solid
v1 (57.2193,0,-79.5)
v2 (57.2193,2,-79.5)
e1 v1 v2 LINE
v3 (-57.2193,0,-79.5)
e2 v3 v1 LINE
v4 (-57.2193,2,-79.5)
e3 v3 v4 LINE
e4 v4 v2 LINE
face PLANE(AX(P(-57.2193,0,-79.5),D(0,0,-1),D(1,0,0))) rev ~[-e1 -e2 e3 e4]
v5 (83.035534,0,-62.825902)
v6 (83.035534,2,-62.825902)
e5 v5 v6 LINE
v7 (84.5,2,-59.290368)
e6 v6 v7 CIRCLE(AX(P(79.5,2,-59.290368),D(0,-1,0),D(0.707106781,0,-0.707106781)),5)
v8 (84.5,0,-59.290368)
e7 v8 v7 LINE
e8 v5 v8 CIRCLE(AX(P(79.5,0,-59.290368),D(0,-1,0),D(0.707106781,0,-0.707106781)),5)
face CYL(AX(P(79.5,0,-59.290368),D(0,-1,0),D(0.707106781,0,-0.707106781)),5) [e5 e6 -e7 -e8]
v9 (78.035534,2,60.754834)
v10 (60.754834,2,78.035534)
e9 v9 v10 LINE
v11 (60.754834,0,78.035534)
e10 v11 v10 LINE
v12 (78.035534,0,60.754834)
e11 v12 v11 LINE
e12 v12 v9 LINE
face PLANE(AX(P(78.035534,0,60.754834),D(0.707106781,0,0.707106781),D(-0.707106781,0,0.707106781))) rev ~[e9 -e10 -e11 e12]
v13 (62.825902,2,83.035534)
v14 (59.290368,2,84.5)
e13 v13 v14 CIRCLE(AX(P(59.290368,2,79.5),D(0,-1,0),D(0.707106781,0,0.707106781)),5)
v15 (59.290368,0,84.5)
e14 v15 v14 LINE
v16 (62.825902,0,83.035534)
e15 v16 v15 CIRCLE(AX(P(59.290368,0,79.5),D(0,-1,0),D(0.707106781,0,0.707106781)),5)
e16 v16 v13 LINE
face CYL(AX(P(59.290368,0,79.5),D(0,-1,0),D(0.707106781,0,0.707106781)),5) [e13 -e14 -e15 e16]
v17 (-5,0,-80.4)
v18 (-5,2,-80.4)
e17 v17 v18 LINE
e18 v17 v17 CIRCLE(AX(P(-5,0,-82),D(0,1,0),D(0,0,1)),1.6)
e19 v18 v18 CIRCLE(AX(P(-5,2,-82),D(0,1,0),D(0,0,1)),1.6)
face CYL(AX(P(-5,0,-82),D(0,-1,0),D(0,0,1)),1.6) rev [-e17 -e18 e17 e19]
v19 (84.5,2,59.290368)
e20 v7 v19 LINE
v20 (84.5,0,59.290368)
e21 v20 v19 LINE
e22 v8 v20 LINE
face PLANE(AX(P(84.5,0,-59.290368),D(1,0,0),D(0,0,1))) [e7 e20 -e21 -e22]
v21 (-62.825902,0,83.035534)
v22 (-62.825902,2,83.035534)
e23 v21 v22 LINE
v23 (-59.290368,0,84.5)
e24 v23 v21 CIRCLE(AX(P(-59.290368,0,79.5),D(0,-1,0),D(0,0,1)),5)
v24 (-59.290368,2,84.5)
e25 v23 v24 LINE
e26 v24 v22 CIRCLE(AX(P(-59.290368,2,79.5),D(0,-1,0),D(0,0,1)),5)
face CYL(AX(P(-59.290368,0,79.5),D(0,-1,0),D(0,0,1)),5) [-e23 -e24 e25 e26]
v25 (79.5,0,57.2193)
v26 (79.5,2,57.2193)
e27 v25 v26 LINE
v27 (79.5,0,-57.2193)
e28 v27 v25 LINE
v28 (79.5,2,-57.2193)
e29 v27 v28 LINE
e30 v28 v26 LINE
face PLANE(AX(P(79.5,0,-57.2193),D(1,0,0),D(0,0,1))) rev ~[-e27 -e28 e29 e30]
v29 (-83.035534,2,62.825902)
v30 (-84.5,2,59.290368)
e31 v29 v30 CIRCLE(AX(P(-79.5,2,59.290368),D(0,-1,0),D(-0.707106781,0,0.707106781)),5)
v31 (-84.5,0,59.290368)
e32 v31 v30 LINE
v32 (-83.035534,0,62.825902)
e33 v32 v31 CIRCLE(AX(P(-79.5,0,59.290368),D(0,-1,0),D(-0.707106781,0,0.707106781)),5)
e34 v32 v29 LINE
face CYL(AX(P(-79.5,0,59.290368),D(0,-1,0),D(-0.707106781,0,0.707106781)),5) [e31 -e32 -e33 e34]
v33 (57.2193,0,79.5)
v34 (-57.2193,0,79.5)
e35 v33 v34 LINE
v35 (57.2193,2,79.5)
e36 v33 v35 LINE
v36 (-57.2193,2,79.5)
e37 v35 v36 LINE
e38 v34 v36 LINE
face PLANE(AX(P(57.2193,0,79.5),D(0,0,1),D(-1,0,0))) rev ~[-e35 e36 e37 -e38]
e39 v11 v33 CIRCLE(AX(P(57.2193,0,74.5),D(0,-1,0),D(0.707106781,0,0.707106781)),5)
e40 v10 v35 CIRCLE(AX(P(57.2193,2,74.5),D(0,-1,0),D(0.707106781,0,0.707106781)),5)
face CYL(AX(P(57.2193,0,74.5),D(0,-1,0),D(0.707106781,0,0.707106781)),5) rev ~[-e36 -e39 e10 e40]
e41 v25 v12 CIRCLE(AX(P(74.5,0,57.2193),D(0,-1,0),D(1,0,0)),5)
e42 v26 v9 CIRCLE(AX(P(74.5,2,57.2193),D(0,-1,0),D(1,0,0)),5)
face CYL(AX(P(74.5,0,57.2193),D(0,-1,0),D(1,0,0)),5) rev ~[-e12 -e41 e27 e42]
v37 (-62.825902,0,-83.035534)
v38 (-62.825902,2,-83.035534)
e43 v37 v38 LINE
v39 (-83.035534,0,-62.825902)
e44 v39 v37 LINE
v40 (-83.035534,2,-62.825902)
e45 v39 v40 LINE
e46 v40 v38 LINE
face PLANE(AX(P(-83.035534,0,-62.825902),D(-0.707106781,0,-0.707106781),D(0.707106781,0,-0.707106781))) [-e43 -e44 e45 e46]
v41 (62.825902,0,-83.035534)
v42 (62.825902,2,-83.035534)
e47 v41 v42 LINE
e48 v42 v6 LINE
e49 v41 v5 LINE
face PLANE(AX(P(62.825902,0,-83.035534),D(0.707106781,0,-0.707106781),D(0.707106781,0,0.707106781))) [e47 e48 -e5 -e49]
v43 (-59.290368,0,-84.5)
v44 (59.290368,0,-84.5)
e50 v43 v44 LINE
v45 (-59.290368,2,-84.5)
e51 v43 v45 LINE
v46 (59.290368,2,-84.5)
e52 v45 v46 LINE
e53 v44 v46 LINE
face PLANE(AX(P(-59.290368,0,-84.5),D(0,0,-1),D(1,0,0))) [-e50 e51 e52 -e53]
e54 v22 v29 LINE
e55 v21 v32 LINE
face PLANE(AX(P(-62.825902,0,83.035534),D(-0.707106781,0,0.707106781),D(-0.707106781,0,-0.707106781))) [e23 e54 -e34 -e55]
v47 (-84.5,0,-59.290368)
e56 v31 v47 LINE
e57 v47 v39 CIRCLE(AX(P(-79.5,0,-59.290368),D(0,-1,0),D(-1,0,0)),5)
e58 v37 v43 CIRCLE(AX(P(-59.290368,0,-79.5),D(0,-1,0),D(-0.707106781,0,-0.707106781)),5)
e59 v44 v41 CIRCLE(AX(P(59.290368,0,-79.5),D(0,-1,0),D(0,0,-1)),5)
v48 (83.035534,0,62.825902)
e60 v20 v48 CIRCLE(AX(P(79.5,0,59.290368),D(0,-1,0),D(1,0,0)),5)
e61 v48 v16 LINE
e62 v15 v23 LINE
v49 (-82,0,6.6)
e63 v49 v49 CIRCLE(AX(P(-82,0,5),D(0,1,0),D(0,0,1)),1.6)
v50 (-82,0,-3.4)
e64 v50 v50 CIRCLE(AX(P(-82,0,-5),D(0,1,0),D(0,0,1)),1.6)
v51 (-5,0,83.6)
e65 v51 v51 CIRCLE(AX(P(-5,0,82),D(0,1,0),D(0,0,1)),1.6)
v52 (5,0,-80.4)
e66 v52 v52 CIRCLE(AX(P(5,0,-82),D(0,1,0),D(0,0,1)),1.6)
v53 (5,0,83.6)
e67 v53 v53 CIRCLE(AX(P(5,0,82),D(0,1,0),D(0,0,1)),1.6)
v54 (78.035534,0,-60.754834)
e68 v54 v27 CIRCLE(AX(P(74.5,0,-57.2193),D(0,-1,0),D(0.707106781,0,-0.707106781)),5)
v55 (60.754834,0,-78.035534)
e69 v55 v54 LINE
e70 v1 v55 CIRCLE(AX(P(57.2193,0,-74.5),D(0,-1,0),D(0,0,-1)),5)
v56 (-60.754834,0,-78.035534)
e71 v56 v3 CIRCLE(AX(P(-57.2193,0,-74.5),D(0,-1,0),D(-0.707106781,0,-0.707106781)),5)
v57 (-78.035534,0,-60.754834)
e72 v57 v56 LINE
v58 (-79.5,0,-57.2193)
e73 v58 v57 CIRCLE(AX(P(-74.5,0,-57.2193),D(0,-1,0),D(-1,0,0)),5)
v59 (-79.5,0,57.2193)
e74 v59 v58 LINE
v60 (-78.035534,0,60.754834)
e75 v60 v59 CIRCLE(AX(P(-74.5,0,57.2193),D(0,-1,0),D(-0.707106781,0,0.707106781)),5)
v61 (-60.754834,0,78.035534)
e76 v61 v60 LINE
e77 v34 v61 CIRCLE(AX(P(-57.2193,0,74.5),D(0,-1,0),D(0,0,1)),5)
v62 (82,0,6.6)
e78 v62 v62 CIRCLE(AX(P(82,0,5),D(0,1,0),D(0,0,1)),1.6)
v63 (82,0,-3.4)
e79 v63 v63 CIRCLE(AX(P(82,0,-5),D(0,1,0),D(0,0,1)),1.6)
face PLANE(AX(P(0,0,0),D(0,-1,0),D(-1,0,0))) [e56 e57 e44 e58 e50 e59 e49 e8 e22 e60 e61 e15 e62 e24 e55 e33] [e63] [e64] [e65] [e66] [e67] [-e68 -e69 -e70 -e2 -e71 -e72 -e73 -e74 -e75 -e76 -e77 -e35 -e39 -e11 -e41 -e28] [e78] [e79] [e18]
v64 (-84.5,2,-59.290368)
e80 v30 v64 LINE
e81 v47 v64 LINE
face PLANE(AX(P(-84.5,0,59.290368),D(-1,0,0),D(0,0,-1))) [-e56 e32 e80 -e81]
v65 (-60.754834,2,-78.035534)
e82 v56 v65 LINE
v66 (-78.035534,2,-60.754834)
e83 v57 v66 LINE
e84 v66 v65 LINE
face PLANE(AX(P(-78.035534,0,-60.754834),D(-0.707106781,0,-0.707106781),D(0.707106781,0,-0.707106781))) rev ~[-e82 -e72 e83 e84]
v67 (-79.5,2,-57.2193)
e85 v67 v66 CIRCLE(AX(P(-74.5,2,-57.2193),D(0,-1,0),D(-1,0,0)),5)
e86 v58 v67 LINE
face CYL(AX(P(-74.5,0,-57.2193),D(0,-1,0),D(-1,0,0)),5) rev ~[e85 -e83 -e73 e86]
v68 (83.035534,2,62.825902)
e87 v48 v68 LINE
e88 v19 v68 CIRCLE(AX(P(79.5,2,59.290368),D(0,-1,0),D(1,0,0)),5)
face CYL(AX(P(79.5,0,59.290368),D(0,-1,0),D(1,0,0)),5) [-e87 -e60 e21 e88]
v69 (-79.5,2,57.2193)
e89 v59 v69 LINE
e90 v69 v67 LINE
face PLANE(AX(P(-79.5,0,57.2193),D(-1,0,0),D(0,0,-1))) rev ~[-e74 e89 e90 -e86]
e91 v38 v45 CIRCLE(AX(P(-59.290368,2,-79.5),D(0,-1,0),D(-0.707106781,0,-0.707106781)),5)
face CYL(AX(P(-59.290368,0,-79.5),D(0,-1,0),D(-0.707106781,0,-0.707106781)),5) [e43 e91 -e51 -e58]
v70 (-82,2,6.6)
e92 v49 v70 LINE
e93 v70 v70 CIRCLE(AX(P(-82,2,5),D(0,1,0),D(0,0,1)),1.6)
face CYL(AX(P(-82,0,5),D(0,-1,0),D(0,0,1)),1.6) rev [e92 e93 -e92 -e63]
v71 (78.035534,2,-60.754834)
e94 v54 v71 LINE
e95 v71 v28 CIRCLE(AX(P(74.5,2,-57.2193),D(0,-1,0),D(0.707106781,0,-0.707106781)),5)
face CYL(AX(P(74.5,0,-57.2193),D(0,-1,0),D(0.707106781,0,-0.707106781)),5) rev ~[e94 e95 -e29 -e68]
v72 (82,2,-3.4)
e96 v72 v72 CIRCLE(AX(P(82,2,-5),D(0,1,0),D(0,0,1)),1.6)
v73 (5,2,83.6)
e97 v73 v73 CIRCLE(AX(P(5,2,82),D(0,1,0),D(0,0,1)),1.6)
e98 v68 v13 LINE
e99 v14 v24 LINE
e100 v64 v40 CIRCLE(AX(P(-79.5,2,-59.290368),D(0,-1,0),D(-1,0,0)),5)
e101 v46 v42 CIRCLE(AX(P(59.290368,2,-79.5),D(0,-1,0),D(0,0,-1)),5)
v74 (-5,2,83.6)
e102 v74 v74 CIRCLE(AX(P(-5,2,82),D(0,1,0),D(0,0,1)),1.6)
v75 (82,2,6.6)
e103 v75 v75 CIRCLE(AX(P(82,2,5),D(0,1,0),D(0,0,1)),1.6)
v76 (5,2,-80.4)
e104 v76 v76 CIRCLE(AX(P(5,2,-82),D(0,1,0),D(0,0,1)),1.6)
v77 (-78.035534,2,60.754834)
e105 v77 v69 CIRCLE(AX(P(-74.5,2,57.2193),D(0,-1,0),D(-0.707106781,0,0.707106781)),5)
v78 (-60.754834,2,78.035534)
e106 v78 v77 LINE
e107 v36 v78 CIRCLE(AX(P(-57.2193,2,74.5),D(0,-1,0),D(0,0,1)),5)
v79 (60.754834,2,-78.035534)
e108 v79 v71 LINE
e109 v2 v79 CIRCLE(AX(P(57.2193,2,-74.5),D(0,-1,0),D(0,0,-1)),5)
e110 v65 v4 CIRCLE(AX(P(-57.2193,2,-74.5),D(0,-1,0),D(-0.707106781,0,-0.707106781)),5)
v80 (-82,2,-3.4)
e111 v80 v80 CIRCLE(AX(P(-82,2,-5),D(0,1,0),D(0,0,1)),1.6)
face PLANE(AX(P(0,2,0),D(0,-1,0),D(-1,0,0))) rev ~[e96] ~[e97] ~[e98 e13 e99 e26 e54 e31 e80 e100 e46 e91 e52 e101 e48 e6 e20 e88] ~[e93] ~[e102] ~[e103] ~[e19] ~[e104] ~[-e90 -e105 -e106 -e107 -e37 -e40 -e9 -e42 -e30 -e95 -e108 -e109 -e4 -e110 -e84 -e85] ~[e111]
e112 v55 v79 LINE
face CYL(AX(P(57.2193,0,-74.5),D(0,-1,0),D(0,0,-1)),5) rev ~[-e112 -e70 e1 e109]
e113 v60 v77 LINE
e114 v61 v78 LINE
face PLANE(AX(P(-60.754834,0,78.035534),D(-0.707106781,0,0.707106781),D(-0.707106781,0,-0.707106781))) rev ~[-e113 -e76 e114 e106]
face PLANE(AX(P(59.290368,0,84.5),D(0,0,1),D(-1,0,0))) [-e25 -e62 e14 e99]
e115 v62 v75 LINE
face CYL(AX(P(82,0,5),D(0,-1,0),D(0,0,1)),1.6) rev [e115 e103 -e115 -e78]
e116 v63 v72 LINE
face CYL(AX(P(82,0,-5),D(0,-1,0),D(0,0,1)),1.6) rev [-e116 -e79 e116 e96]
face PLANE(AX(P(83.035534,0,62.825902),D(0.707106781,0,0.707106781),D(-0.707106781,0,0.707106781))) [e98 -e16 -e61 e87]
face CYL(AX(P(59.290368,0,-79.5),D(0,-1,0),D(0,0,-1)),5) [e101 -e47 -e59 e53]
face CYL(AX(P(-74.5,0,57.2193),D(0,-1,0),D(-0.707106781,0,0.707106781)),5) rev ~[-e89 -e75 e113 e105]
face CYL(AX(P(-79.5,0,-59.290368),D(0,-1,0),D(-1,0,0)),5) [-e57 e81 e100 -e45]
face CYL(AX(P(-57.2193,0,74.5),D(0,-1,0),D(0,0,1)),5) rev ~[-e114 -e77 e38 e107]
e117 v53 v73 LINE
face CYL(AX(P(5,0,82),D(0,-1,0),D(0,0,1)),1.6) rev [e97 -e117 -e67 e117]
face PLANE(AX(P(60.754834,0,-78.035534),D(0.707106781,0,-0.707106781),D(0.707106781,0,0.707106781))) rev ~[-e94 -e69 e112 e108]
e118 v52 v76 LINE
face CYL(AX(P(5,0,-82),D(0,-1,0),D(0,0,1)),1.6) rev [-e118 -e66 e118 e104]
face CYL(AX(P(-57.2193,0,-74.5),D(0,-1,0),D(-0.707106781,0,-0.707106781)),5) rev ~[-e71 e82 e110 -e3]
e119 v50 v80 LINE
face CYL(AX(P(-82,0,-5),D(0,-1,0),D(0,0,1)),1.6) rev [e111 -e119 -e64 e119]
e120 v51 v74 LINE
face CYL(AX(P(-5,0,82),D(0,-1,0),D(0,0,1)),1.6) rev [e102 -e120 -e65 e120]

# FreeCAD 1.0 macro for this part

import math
import FreeCAD as App
import Part
import Sketcher

V = App.Vector
Q = App.Units.Quantity

doc = App.newDocument("Part")
body = doc.addObject("PartDesign::Body", "Body")

sketch1 = body.newObject("Sketcher::SketchObject", "Sketch")
sketch1.AttachmentSupport = (doc.getObject("XZ_Plane"), [""])
sketch1.MapMode = "FlatFace"
sketch1.addGeometry(Part.ArcOfCircle(Part.Circle(V(59.3, -79.5, 0), V(0, 0, 1), 5), math.radians(-90), math.radians(-45)), False)
sketch1.addGeometry(Part.LineSegment(V(59.3, -84.5, 0), V(-59.3, -84.5, 0)), False)
sketch1.addGeometry(Part.ArcOfCircle(Part.Circle(V(-59.3, -79.5, 0), V(0, 0, 1), 5), math.radians(-135), math.radians(-90)), False)
sketch1.addGeometry(Part.LineSegment(V(-62.8, -83, 0), V(-83, -62.8, 0)), False)
sketch1.addGeometry(Part.ArcOfCircle(Part.Circle(V(-79.5, -59.3, 0), V(0, 0, 1), 5), math.radians(180), math.radians(225)), False)
sketch1.addGeometry(Part.LineSegment(V(-84.5, -59.3, 0), V(-84.5, 59.3, 0)), False)
sketch1.addGeometry(Part.ArcOfCircle(Part.Circle(V(-79.5, 59.3, 0), V(0, 0, 1), 5), math.radians(135), math.radians(180)), False)
sketch1.addGeometry(Part.LineSegment(V(-83, 62.8, 0), V(-62.8, 83, 0)), False)
sketch1.addGeometry(Part.ArcOfCircle(Part.Circle(V(-59.3, 79.5, 0), V(0, 0, 1), 5), math.radians(90), math.radians(135)), False)
sketch1.addGeometry(Part.LineSegment(V(-59.3, 84.5, 0), V(59.3, 84.5, 0)), False)
sketch1.addGeometry(Part.ArcOfCircle(Part.Circle(V(59.3, 79.5, 0), V(0, 0, 1), 5), math.radians(45), math.radians(90)), False)
sketch1.addGeometry(Part.LineSegment(V(62.8, 83, 0), V(83, 62.8, 0)), False)
sketch1.addGeometry(Part.ArcOfCircle(Part.Circle(V(79.5, 59.3, 0), V(0, 0, 1), 5), math.radians(0), math.radians(45)), False)
sketch1.addGeometry(Part.LineSegment(V(84.5, 59.3, 0), V(84.5, -59.3, 0)), False)
sketch1.addGeometry(Part.ArcOfCircle(Part.Circle(V(79.5, -59.3, 0), V(0, 0, 1), 5), math.radians(-45), math.radians(0)), False)
sketch1.addGeometry(Part.LineSegment(V(83, -62.8, 0), V(62.8, -83, 0)), False)
sketch1.addGeometry(Part.Circle(V(5, 82, 0), V(0, 0, 1), 1.6), False)
sketch1.addGeometry(Part.Circle(V(82, 5, 0), V(0, 0, 1), 1.6), False)
sketch1.addGeometry(Part.ArcOfCircle(Part.Circle(V(57.2, -74.5, 0), V(0, 0, 1), 5), math.radians(-90), math.radians(-45)), False)
sketch1.addGeometry(Part.LineSegment(V(60.8, -78, 0), V(78, -60.8, 0)), False)
sketch1.addGeometry(Part.ArcOfCircle(Part.Circle(V(74.5, -57.2, 0), V(0, 0, 1), 5), math.radians(-45), math.radians(0)), False)
sketch1.addGeometry(Part.LineSegment(V(79.5, -57.2, 0), V(79.5, 57.2, 0)), False)
sketch1.addGeometry(Part.ArcOfCircle(Part.Circle(V(74.5, 57.2, 0), V(0, 0, 1), 5), math.radians(0), math.radians(45)), False)
sketch1.addGeometry(Part.LineSegment(V(78, 60.8, 0), V(60.8, 78, 0)), False)
sketch1.addGeometry(Part.ArcOfCircle(Part.Circle(V(57.2, 74.5, 0), V(0, 0, 1), 5), math.radians(45), math.radians(90)), False)
sketch1.addGeometry(Part.LineSegment(V(57.2, 79.5, 0), V(-57.2, 79.5, 0)), False)
sketch1.addGeometry(Part.ArcOfCircle(Part.Circle(V(-57.2, 74.5, 0), V(0, 0, 1), 5), math.radians(90), math.radians(135)), False)
sketch1.addGeometry(Part.LineSegment(V(-60.8, 78, 0), V(-78, 60.8, 0)), False)
sketch1.addGeometry(Part.ArcOfCircle(Part.Circle(V(-74.5, 57.2, 0), V(0, 0, 1), 5), math.radians(135), math.radians(180)), False)
sketch1.addGeometry(Part.LineSegment(V(-79.5, 57.2, 0), V(-79.5, -57.2, 0)), False)
sketch1.addGeometry(Part.ArcOfCircle(Part.Circle(V(-74.5, -57.2, 0), V(0, 0, 1), 5), math.radians(180), math.radians(225)), False)
sketch1.addGeometry(Part.LineSegment(V(-78, -60.8, 0), V(-60.8, -78, 0)), False)
sketch1.addGeometry(Part.ArcOfCircle(Part.Circle(V(-57.2, -74.5, 0), V(0, 0, 1), 5), math.radians(-135), math.radians(-90)), False)
sketch1.addGeometry(Part.LineSegment(V(-57.2, -79.5, 0), V(57.2, -79.5, 0)), False)
sketch1.addGeometry(Part.Circle(V(-5, 82, 0), V(0, 0, 1), 1.6), False)
sketch1.addGeometry(Part.Circle(V(-82, 5, 0), V(0, 0, 1), 1.6), False)
sketch1.addGeometry(Part.Circle(V(82, -5, 0), V(0, 0, 1), 1.6), False)
sketch1.addGeometry(Part.Circle(V(5, -82, 0), V(0, 0, 1), 1.6), False)
sketch1.addGeometry(Part.Circle(V(-82, -5, 0), V(0, 0, 1), 1.6), False)
sketch1.addGeometry(Part.Circle(V(-5, -82, 0), V(0, 0, 1), 1.6), False)
sketch1.addConstraint(Sketcher.Constraint("Tangent", 0, 1, 1, 1))
sketch1.addConstraint(Sketcher.Constraint("Tangent", 1, 2, 2, 2))
sketch1.addConstraint(Sketcher.Constraint("Tangent", 2, 1, 3, 1))
sketch1.addConstraint(Sketcher.Constraint("Tangent", 3, 2, 4, 2))
sketch1.addConstraint(Sketcher.Constraint("Tangent", 4, 1, 5, 1))
sketch1.addConstraint(Sketcher.Constraint("Tangent", 5, 2, 6, 2))
sketch1.addConstraint(Sketcher.Constraint("Tangent", 6, 1, 7, 1))
sketch1.addConstraint(Sketcher.Constraint("Tangent", 7, 2, 8, 2))
sketch1.addConstraint(Sketcher.Constraint("Tangent", 8, 1, 9, 1))
sketch1.addConstraint(Sketcher.Constraint("Tangent", 9, 2, 10, 2))
sketch1.addConstraint(Sketcher.Constraint("Tangent", 10, 1, 11, 1))
sketch1.addConstraint(Sketcher.Constraint("Tangent", 11, 2, 12, 2))
sketch1.addConstraint(Sketcher.Constraint("Tangent", 12, 1, 13, 1))
sketch1.addConstraint(Sketcher.Constraint("Tangent", 13, 2, 14, 2))
sketch1.addConstraint(Sketcher.Constraint("Tangent", 14, 1, 15, 1))
sketch1.addConstraint(Sketcher.Constraint("Tangent", 15, 2, 0, 2))
sketch1.addConstraint(Sketcher.Constraint("Tangent", 18, 2, 19, 1))
sketch1.addConstraint(Sketcher.Constraint("Tangent", 19, 2, 20, 1))
sketch1.addConstraint(Sketcher.Constraint("Tangent", 20, 2, 21, 1))
sketch1.addConstraint(Sketcher.Constraint("Tangent", 21, 2, 22, 1))
sketch1.addConstraint(Sketcher.Constraint("Tangent", 22, 2, 23, 1))
sketch1.addConstraint(Sketcher.Constraint("Tangent", 23, 2, 24, 1))
sketch1.addConstraint(Sketcher.Constraint("Tangent", 24, 2, 25, 1))
sketch1.addConstraint(Sketcher.Constraint("Tangent", 25, 2, 26, 1))
sketch1.addConstraint(Sketcher.Constraint("Tangent", 26, 2, 27, 1))
sketch1.addConstraint(Sketcher.Constraint("Tangent", 27, 2, 28, 1))
sketch1.addConstraint(Sketcher.Constraint("Tangent", 28, 2, 29, 1))
sketch1.addConstraint(Sketcher.Constraint("Tangent", 29, 2, 30, 1))
sketch1.addConstraint(Sketcher.Constraint("Tangent", 30, 2, 31, 1))
sketch1.addConstraint(Sketcher.Constraint("Tangent", 31, 2, 32, 1))
sketch1.addConstraint(Sketcher.Constraint("Tangent", 32, 2, 33, 1))
sketch1.addConstraint(Sketcher.Constraint("Tangent", 33, 2, 18, 1))
sketch1.addConstraint(Sketcher.Constraint("Horizontal", 1))
sketch1.addConstraint(Sketcher.Constraint("Vertical", 5))
sketch1.addConstraint(Sketcher.Constraint("Horizontal", 9))
sketch1.addConstraint(Sketcher.Constraint("Vertical", 13))
sketch1.addConstraint(Sketcher.Constraint("Vertical", 21))
sketch1.addConstraint(Sketcher.Constraint("Horizontal", 25))
sketch1.addConstraint(Sketcher.Constraint("Vertical", 29))
sketch1.addConstraint(Sketcher.Constraint("Horizontal", 33))
sketch1.addConstraint(Sketcher.Constraint("Equal", 0, 2))
sketch1.addConstraint(Sketcher.Constraint("Equal", 2, 4))
sketch1.addConstraint(Sketcher.Constraint("Equal", 4, 6))
sketch1.addConstraint(Sketcher.Constraint("Equal", 6, 8))
sketch1.addConstraint(Sketcher.Constraint("Equal", 8, 10))
sketch1.addConstraint(Sketcher.Constraint("Equal", 10, 12))
sketch1.addConstraint(Sketcher.Constraint("Equal", 12, 14))
sketch1.addConstraint(Sketcher.Constraint("Equal", 16, 17))
sketch1.addConstraint(Sketcher.Constraint("Equal", 14, 18))
sketch1.addConstraint(Sketcher.Constraint("Equal", 18, 20))
sketch1.addConstraint(Sketcher.Constraint("Equal", 20, 22))
sketch1.addConstraint(Sketcher.Constraint("Equal", 22, 24))
sketch1.addConstraint(Sketcher.Constraint("Equal", 24, 26))
sketch1.addConstraint(Sketcher.Constraint("Equal", 26, 28))
sketch1.addConstraint(Sketcher.Constraint("Equal", 28, 30))
sketch1.addConstraint(Sketcher.Constraint("Equal", 30, 32))
sketch1.addConstraint(Sketcher.Constraint("Equal", 17, 34))
sketch1.addConstraint(Sketcher.Constraint("Equal", 34, 35))
sketch1.addConstraint(Sketcher.Constraint("Equal", 35, 36))
sketch1.addConstraint(Sketcher.Constraint("Equal", 36, 37))
sketch1.addConstraint(Sketcher.Constraint("Equal", 37, 38))
sketch1.addConstraint(Sketcher.Constraint("Equal", 38, 39))
sketch1.addConstraint(Sketcher.Constraint("Symmetric", 0, 3, 8, 3, -1, 1))
sketch1.addConstraint(Sketcher.Constraint("Symmetric", 4, 3, 12, 3, -1, 1))
sketch1.addConstraint(Sketcher.Constraint("Symmetric", 18, 3, 26, 3, -1, 1))
sketch1.addConstraint(Sketcher.Constraint("Symmetric", 20, 3, 28, 3, -1, 1))
sketch1.addConstraint(Sketcher.Constraint("Symmetric", 35, 3, 36, 3, -1, 1))
sketch1.addConstraint(Sketcher.Constraint("Symmetric", 34, 3, 37, 3, -1, 1))
sketch1.addConstraint(Sketcher.Constraint("Symmetric", 17, 3, 38, 3, -1, 1))
sketch1.addConstraint(Sketcher.Constraint("Symmetric", 16, 3, 39, 3, -1, 1))
sketch1.addConstraint(Sketcher.Constraint("Symmetric", 22, 2, 30, 2, -1, 1))
sketch1.addConstraint(Sketcher.Constraint("Symmetric", 16, 3, 34, 3, -2))
sketch1.addConstraint(Sketcher.Constraint("Symmetric", 17, 3, 35, 3, -2))
sketch1.addConstraint(Sketcher.Constraint("Symmetric", 7, 2, 10, 1, -2))
sketch1.addConstraint(Sketcher.Constraint("Symmetric", 3, 2, 14, 1, -2))
sketch1.addConstraint(Sketcher.Constraint("Symmetric", 23, 2, 26, 2, -2))
sketch1.addConstraint(Sketcher.Constraint("Perpendicular", 3, 7))
sketch1.addConstraint(Sketcher.Constraint("Parallel", 15, 19))
sketch1.addConstraint(Sketcher.Constraint("Horizontal", 10, 3, 24, 2))
sketch1.addConstraint(Sketcher.Constraint("Vertical", 14, 3, 20, 2))
sketch1.addConstraint(Sketcher.Constraint("Equal", 9, 5))
sketch1.addConstraint(Sketcher.Constraint("Radius", 0, Q("5 mm")))
sketch1.addConstraint(Sketcher.Constraint("Diameter", 16, Q("3.2 mm")))
sketch1.addConstraint(Sketcher.Constraint("DistanceX", -1, 1, 16, 3, Q("5 mm")))
sketch1.addConstraint(Sketcher.Constraint("DistanceY", -1, 1, 16, 3, Q("82 mm")))
sketch1.addConstraint(Sketcher.Constraint("DistanceX", -1, 1, 17, 3, Q("82 mm")))
sketch1.addConstraint(Sketcher.Constraint("DistanceY", -1, 1, 17, 3, Q("5 mm")))
sketch1.addConstraint(Sketcher.Constraint("DistanceY", 2, 3, 8, 3, Q("159 mm")))
sketch1.addConstraint(Sketcher.Constraint("DistanceX", 25, 2, 25, 1, Q("114.4386 mm")))
sketch1.addConstraint(Sketcher.Constraint("DistanceX", 2, 1, -1, 1, Q("62.825902 mm")))
pad1 = body.newObject("PartDesign::Pad", "Pad")
pad1.Profile = sketch1
pad1.Length = 2
pad1.Reversed = True

doc.recompute()
